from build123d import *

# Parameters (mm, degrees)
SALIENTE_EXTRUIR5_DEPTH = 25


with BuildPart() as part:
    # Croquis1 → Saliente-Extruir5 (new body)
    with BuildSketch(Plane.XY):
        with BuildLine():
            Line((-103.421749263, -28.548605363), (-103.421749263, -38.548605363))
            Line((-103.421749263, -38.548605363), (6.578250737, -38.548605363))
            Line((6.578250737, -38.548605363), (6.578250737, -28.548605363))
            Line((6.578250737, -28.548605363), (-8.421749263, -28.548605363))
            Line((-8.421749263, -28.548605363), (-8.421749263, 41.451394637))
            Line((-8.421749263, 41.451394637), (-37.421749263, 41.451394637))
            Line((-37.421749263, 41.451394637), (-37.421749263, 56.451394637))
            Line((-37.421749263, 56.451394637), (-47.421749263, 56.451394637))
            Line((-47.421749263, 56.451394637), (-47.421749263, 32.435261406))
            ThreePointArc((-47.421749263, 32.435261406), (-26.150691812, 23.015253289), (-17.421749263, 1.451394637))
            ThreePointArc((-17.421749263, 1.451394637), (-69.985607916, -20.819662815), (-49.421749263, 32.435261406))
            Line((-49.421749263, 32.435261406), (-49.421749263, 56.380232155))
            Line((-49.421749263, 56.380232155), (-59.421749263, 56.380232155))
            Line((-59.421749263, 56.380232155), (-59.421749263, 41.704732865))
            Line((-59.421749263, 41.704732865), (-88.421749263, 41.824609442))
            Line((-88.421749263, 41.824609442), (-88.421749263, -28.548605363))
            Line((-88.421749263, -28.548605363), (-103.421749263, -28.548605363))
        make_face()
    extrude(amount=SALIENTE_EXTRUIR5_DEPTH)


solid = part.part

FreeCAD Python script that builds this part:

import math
import FreeCAD as App
import Part
import Sketcher

V = App.Vector

doc = App.newDocument("Part")
body = doc.addObject("PartDesign::Body", "Body")

sketch1 = doc.addObject("Sketcher::SketchObject", "Sketch")
body.addObject(sketch1)
sketch1.AttachmentSupport = (doc.XY_Plane, [""])
sketch1.MapMode = "FlatFace"
sketch1.addGeometry(Part.LineSegment(V(-103, -29, 0), V(-103, -39, 0)), False)
sketch1.addGeometry(Part.LineSegment(V(-103, -39, 0), V(7, -39, 0)), False)
sketch1.addGeometry(Part.LineSegment(V(7, -39, 0), V(7, -29, 0)), False)
sketch1.addGeometry(Part.LineSegment(V(7, -29, 0), V(-8, -29, 0)), False)
sketch1.addGeometry(Part.LineSegment(V(-8, -29, 0), V(-8, 41, 0)), False)
sketch1.addGeometry(Part.LineSegment(V(-8, 41, 0), V(-37, 41, 0)), False)
sketch1.addGeometry(Part.LineSegment(V(-37, 41, 0), V(-37, 56, 0)), False)
sketch1.addGeometry(Part.LineSegment(V(-37, 56, 0), V(-47, 56, 0)), False)
sketch1.addGeometry(Part.LineSegment(V(-47, 56, 0), V(-47, 32, 0)), False)
sketch1.addGeometry(Part.ArcOfCircle(Part.Circle(V(-48, 1, 0), V(0, 0, 1), 31), math.radians(0), math.radians(88)), False)
sketch1.addGeometry(Part.ArcOfCircle(Part.Circle(V(-48, 1, 0), V(0, 0, 1), 31), math.radians(92), math.radians(360)), False)
sketch1.addGeometry(Part.LineSegment(V(-49, 32, 0), V(-49, 56, 0)), False)
sketch1.addGeometry(Part.LineSegment(V(-49, 56, 0), V(-59, 56, 0)), False)
sketch1.addGeometry(Part.LineSegment(V(-59, 56, 0), V(-59, 42, 0)), False)
sketch1.addGeometry(Part.LineSegment(V(-59, 42, 0), V(-88, 42, 0)), False)
sketch1.addGeometry(Part.LineSegment(V(-88, 42, 0), V(-88, -29, 0)), False)
sketch1.addGeometry(Part.LineSegment(V(-88, -29, 0), V(-103, -29, 0)), False)
sketch1.addConstraint(Sketcher.Constraint("Coincident", 0, 2, 1, 1))
sketch1.addConstraint(Sketcher.Constraint("Coincident", 1, 2, 2, 1))
sketch1.addConstraint(Sketcher.Constraint("Coincident", 2, 2, 3, 1))
sketch1.addConstraint(Sketcher.Constraint("Coincident", 3, 2, 4, 1))
sketch1.addConstraint(Sketcher.Constraint("Coincident", 4, 2, 5, 1))
sketch1.addConstraint(Sketcher.Constraint("Coincident", 5, 2, 6, 1))
sketch1.addConstraint(Sketcher.Constraint("Coincident", 6, 2, 7, 1))
sketch1.addConstraint(Sketcher.Constraint("Coincident", 7, 2, 8, 1))
sketch1.addConstraint(Sketcher.Constraint("Coincident", 8, 2, 9, 2))
sketch1.addConstraint(Sketcher.Constraint("Tangent", 9, 1, 10, 2))
sketch1.addConstraint(Sketcher.Constraint("Coincident", 10, 1, 11, 1))
sketch1.addConstraint(Sketcher.Constraint("Coincident", 11, 2, 12, 1))
sketch1.addConstraint(Sketcher.Constraint("Coincident", 12, 2, 13, 1))
sketch1.addConstraint(Sketcher.Constraint("Coincident", 13, 2, 14, 1))
sketch1.addConstraint(Sketcher.Constraint("Coincident", 14, 2, 15, 1))
sketch1.addConstraint(Sketcher.Constraint("Coincident", 15, 2, 16, 1))
sketch1.addConstraint(Sketcher.Constraint("Coincident", 16, 2, 0, 1))
sketch1.addConstraint(Sketcher.Constraint("Vertical", 0))
sketch1.addConstraint(Sketcher.Constraint("Horizontal", 1))
sketch1.addConstraint(Sketcher.Constraint("Vertical", 2))
sketch1.addConstraint(Sketcher.Constraint("Horizontal", 3))
sketch1.addConstraint(Sketcher.Constraint("Vertical", 4))
sketch1.addConstraint(Sketcher.Constraint("Horizontal", 5))
sketch1.addConstraint(Sketcher.Constraint("Vertical", 6))
sketch1.addConstraint(Sketcher.Constraint("Horizontal", 7))
sketch1.addConstraint(Sketcher.Constraint("Vertical", 8))
sketch1.addConstraint(Sketcher.Constraint("Vertical", 11))
sketch1.addConstraint(Sketcher.Constraint("Horizontal", 12))
sketch1.addConstraint(Sketcher.Constraint("Vertical", 13))
sketch1.addConstraint(Sketcher.Constraint("Vertical", 15))
sketch1.addConstraint(Sketcher.Constraint("Horizontal", 16))
sketch1.addConstraint(Sketcher.Constraint("Equal", 9, 10))
sketch1.addConstraint(Sketcher.Constraint("Horizontal", 10, 3, 9, 1))
sketch1.addConstraint(Sketcher.Constraint("Horizontal", 8, 2, 10, 1))
sketch1.addConstraint(Sketcher.Constraint("Horizontal", 3, 2, 15, 2))
sketch1.addConstraint(Sketcher.Constraint("Equal", 7, 12))
sketch1.addConstraint(Sketcher.Constraint("Equal", 3, 16))
sketch1.addConstraint(Sketcher.Constraint("Equal", 12, 0))
sketch1.addConstraint(Sketcher.Constraint("Equal", 16, 6))
sketch1.addConstraint(Sketcher.Constraint("Radius", 9, 31.0))
sketch1.addConstraint(Sketcher.Constraint("DistanceX", 1, 1, 1, 2, 110.0))
sketch1.addConstraint(Sketcher.Constraint("DistanceX", 3, 2, 3, 1, 15.0))
sketch1.addConstraint(Sketcher.Constraint("DistanceX", 5, 2, 5, 1, 29.0))
sketch1.addConstraint(Sketcher.Constraint("DistanceX", 7, 2, 7, 1, 10.0))
sketch1.addConstraint(Sketcher.Constraint("DistanceY", 4, 1, 4, 2, 70.0))
sketch1.addConstraint(Sketcher.Constraint("DistanceX", 0, 2, 9, 3, 55.0))
sketch1.addConstraint(Sketcher.Constraint("DistanceY", 0, 2, 9, 3, 40.0))
sketch1.addConstraint(Sketcher.Constraint("DistanceY", 13, 2, 13, 1, 14.675499))
sketch1.addConstraint(Sketcher.Constraint("DistanceY", 11, 1, 11, 2, 23.944971))
sketch1.addConstraint(Sketcher.Constraint("DistanceY", 15, 2, 15, 1, 70.373215))
sketch1.addConstraint(Sketcher.Constraint("DistanceX", 9, 3, -1, 1, 48.421749))
sketch1.addConstraint(Sketcher.Constraint("DistanceY", -1, 1, 8, 2, 32.435261))
pad1 = doc.addObject("PartDesign::Pad", "Pad")
body.addObject(pad1)
pad1.Profile = sketch1
pad1.Length = 25

doc.recompute()
